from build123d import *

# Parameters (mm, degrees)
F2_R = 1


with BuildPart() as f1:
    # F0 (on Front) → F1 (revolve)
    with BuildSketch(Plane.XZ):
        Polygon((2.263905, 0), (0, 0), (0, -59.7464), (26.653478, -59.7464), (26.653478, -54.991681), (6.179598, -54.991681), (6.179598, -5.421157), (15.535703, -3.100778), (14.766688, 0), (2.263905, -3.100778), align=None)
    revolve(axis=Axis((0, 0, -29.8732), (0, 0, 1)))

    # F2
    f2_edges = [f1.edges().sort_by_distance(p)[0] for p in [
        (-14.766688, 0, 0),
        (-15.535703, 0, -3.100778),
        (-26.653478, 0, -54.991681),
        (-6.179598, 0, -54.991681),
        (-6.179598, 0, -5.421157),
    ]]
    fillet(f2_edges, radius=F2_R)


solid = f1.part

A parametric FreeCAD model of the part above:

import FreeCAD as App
import Part
import Sketcher

V = App.Vector
Q = App.Units.Quantity


def edges_at(feature, points):
    """Names of the edges that pass closest to the given points."""
    edges = feature.Shape.Edges
    near = lambda p: min(range(len(edges)), key=lambda i: edges[i].distToShape(Part.Vertex(*p))[0])
    return sorted({f"Edge{near(p) + 1}" for p in points})

doc = App.newDocument("Part")
body = doc.addObject("PartDesign::Body", "Body")

# Sketch on XZ plane
sketch1 = doc.addObject("Sketcher::SketchObject", "Sketch")
body.addObject(sketch1)
sketch1.AttachmentSupport = (doc.XZ_Plane, [""])
sketch1.MapMode = "FlatFace"
sketch1.addGeometry([
    Part.LineSegment(V(2.263905, 0, 0), V(0, 0, 0)),  # 0
    Part.LineSegment(V(0, 0, 0), V(0, -59.7464, 0)),  # 1
    Part.LineSegment(V(0, -59.7464, 0), V(26.653478, -59.7464, 0)),  # 2
    Part.LineSegment(V(26.653478, -59.7464, 0), V(26.653478, -54.991681, 0)),  # 3
    Part.LineSegment(V(26.653478, -54.991681, 0), V(6.179598, -54.991681, 0)),  # 4
    Part.LineSegment(V(6.179598, -54.991681, 0), V(6.179598, -5.421157, 0)),  # 5
    Part.LineSegment(V(6.179598, -5.421157, 0), V(15.535703, -3.100778, 0)),  # 6
    Part.LineSegment(V(15.535703, -3.100778, 0), V(14.766688, 0, 0)),  # 7
    Part.LineSegment(V(14.766688, 0, 0), V(2.263905, -3.100778, 0)),  # 8
    Part.LineSegment(V(2.263905, -3.100778, 0), V(2.263905, 0, 0)),  # 9
], False)
sketch1.addConstraint([
    Sketcher.Constraint("Coincident", 0, 2, 1, 1),
    Sketcher.Constraint("Coincident", 1, 2, 2, 1),
    Sketcher.Constraint("Coincident", 2, 2, 3, 1),
    Sketcher.Constraint("Coincident", 3, 2, 4, 1),
    Sketcher.Constraint("Coincident", 4, 2, 5, 1),
    Sketcher.Constraint("Coincident", 5, 2, 6, 1),
    Sketcher.Constraint("Coincident", 6, 2, 7, 1),
    Sketcher.Constraint("Coincident", 7, 2, 8, 1),
    Sketcher.Constraint("Coincident", 8, 2, 9, 1),
    Sketcher.Constraint("Coincident", 9, 2, 0, 1),
    Sketcher.Constraint("Horizontal", 0),
    Sketcher.Constraint("Vertical", 1),
    Sketcher.Constraint("Horizontal", 2),
    Sketcher.Constraint("Vertical", 3),
    Sketcher.Constraint("Horizontal", 4),
    Sketcher.Constraint("Vertical", 5),
    Sketcher.Constraint("Vertical", 9),
    Sketcher.Constraint("Coincident", 0, 2, -1, 1),
    Sketcher.Constraint("PointOnObject", 7, 2, -1),
    Sketcher.Constraint("Perpendicular", 6, 7),
    Sketcher.Constraint("Perpendicular", 7, 8),
    Sketcher.Constraint("Horizontal", 6, 2, 8, 2),
    Sketcher.Constraint("DistanceY", 1, 2, 1, 1, Q("59.7464 mm")),
    Sketcher.Constraint("DistanceX", 2, 1, 2, 2, Q("26.653478 mm")),
    Sketcher.Constraint("DistanceX", 4, 2, 4, 1, Q("20.47388 mm")),
    Sketcher.Constraint("DistanceY", 3, 1, 3, 2, Q("4.754719 mm")),
    Sketcher.Constraint("DistanceY", 9, 1, 9, 2, Q("3.100778 mm")),
    Sketcher.Constraint("DistanceX", 0, 2, 0, 1, Q("2.263905 mm")),
    Sketcher.Constraint("DistanceY", 5, 1, 5, 2, Q("49.570524 mm")),
])
revolution = doc.addObject("PartDesign::Revolution", "Revolution")
body.addObject(revolution)
revolution.Profile = sketch1
revolution.ReferenceAxis = (sketch1, ["V_Axis"])
revolution.Angle = 360
doc.recompute()

fillet = doc.addObject("PartDesign::Fillet", "Fillet")
body.addObject(fillet)
fillet.Base = (revolution, edges_at(revolution, [
    (-14.767, 0, 0),
    (-15.536, 0, -3.101),
    (-26.653, 0, -54.992),
    (-6.18, 0, -54.992),
    (-6.18, 0, -5.421),
]))
fillet.Radius = 1

doc.recompute()
